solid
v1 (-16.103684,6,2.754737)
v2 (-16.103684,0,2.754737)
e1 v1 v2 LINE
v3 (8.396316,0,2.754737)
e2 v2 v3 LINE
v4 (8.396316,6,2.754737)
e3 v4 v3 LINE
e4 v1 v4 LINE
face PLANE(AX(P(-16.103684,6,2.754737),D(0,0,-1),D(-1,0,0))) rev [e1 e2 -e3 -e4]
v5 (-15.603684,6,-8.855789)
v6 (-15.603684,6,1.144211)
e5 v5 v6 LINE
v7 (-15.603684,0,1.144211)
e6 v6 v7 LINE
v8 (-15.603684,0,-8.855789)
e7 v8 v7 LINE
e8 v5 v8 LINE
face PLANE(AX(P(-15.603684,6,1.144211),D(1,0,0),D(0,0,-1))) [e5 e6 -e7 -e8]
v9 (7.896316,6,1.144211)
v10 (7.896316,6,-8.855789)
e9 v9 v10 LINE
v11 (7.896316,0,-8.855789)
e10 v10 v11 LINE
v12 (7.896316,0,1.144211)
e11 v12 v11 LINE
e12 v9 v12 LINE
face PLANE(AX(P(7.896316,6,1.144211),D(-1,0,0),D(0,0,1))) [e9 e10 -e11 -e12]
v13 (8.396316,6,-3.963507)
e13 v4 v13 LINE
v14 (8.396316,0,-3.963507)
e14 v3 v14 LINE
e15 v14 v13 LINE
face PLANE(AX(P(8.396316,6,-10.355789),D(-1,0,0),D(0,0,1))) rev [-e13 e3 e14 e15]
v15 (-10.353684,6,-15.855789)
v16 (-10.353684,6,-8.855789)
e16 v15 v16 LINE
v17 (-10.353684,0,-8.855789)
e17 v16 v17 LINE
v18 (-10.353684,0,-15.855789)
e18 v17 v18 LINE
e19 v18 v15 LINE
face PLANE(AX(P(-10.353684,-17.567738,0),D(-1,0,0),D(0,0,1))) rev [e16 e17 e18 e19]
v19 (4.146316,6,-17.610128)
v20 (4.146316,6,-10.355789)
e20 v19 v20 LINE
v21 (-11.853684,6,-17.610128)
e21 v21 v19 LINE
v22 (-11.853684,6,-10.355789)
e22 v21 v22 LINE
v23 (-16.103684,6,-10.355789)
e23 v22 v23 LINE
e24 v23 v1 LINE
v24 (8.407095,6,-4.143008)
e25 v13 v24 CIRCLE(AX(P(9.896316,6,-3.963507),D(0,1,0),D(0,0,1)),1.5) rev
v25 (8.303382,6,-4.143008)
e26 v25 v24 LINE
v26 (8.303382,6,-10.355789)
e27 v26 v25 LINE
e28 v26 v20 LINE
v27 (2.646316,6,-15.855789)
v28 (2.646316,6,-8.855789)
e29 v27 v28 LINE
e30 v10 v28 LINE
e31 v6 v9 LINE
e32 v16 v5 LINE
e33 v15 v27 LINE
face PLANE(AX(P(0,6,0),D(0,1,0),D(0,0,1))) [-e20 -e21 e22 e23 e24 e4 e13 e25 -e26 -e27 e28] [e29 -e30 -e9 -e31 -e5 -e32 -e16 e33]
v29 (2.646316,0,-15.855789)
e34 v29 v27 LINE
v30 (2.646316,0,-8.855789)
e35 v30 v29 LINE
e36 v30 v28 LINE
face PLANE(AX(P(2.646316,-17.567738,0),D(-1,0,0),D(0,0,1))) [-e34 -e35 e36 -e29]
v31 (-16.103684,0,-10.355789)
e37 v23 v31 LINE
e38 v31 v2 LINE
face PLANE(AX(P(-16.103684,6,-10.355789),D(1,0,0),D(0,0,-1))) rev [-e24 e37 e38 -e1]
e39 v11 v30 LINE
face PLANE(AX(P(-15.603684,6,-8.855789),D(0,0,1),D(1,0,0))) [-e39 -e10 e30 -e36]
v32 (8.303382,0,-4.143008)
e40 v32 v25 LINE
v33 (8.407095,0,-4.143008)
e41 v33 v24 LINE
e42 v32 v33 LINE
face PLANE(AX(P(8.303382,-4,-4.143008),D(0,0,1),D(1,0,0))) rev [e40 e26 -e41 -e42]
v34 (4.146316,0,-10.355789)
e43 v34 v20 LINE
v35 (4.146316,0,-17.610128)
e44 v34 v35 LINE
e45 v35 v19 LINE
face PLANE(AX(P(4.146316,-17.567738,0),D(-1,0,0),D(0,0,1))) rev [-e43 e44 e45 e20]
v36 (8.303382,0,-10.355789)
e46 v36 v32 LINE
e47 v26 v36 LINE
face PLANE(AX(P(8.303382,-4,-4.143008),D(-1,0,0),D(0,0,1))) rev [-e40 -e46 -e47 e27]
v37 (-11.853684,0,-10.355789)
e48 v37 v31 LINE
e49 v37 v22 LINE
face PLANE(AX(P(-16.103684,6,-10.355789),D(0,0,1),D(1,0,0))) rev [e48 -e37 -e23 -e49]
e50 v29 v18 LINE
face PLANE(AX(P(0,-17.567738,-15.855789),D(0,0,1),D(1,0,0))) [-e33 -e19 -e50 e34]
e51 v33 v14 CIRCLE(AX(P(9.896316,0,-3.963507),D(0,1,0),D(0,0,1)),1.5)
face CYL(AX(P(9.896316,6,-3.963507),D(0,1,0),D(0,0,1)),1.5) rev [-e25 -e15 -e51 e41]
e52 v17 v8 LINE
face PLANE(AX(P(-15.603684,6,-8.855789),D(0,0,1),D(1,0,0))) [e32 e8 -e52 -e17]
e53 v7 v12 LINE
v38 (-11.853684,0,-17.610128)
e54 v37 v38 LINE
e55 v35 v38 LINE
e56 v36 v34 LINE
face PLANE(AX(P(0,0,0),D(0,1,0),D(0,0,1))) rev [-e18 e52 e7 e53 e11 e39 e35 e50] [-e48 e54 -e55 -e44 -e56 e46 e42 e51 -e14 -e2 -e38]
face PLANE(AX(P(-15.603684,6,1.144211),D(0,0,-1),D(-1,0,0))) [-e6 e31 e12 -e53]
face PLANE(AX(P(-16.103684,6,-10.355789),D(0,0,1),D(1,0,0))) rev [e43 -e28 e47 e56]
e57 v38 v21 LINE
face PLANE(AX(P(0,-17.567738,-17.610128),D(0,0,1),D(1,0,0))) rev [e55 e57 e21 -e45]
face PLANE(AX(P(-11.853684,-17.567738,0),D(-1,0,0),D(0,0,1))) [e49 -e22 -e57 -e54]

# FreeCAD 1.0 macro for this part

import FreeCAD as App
import Part
import Sketcher


def edges_at(feature, points):
    """Names of the edges that pass closest to the given points."""
    edges = feature.Shape.Edges
    near = lambda p: min(range(len(edges)), key=lambda i: edges[i].distToShape(Part.Vertex(*p))[0])
    return sorted({f"Edge{near(p) + 1}" for p in points})

doc = App.newDocument("Part")
body = doc.addObject("PartDesign::Body", "Body")

sketch1 = doc.addObject("Sketcher::SketchObject", "Sketch")
body.addObject(sketch1)
sketch1.AttachmentSupport = (doc.XZ_Plane, [""])
sketch1.MapMode = "FlatFace"
sketch1.addGeometry(Part.LineSegment(App.Vector(-16, -10, 0), App.Vector(-16, 3, 0)), False)
sketch1.addGeometry(Part.LineSegment(App.Vector(-16, 3, 0), App.Vector(8, 3, 0)), False)
sketch1.addGeometry(Part.LineSegment(App.Vector(8, 3, 0), App.Vector(8, -10, 0)), False)
sketch1.addGeometry(Part.LineSegment(App.Vector(8, -10, 0), App.Vector(-16, -10, 0)), False)
sketch1.addGeometry(Part.LineSegment(App.Vector(8, 1, 0), App.Vector(-16, 1, 0)), False)
sketch1.addGeometry(Part.LineSegment(App.Vector(-16, 1, 0), App.Vector(-16, -9, 0)), False)
sketch1.addGeometry(Part.LineSegment(App.Vector(-16, -9, 0), App.Vector(8, -9, 0)), False)
sketch1.addGeometry(Part.LineSegment(App.Vector(8, -9, 0), App.Vector(8, 1, 0)), False)
sketch1.addConstraint(Sketcher.Constraint("Coincident", 0, 2, 1, 1))
sketch1.addConstraint(Sketcher.Constraint("Coincident", 1, 2, 2, 1))
sketch1.addConstraint(Sketcher.Constraint("Coincident", 2, 2, 3, 1))
sketch1.addConstraint(Sketcher.Constraint("Coincident", 3, 2, 0, 1))
sketch1.addConstraint(Sketcher.Constraint("Coincident", 4, 2, 5, 1))
sketch1.addConstraint(Sketcher.Constraint("Coincident", 5, 2, 6, 1))
sketch1.addConstraint(Sketcher.Constraint("Coincident", 6, 2, 7, 1))
sketch1.addConstraint(Sketcher.Constraint("Coincident", 7, 2, 4, 1))
sketch1.addConstraint(Sketcher.Constraint("Vertical", 0))
sketch1.addConstraint(Sketcher.Constraint("Horizontal", 1))
sketch1.addConstraint(Sketcher.Constraint("Vertical", 2))
sketch1.addConstraint(Sketcher.Constraint("Horizontal", 3))
sketch1.addConstraint(Sketcher.Constraint("Horizontal", 4))
sketch1.addConstraint(Sketcher.Constraint("Vertical", 5))
sketch1.addConstraint(Sketcher.Constraint("Horizontal", 6))
sketch1.addConstraint(Sketcher.Constraint("Vertical", 7))
sketch1.addConstraint(Sketcher.Constraint("DistanceY", 5, 2, 5, 1, 10.0))
sketch1.addConstraint(Sketcher.Constraint("DistanceX", 1, 1, 1, 2, 24.5))
sketch1.addConstraint(Sketcher.Constraint("DistanceX", 4, 2, 4, 1, 23.5))
sketch1.addConstraint(Sketcher.Constraint("DistanceX", 4, 2, 1, 2, 24.0))
sketch1.addConstraint(Sketcher.Constraint("DistanceY", 3, 2, 4, 2, 11.5))
sketch1.addConstraint(Sketcher.Constraint("DistanceY", 0, 1, 0, 2, 13.110526))
sketch1.addConstraint(Sketcher.Constraint("DistanceY", 2, 2, -1, 1, 10.355789))
sketch1.addConstraint(Sketcher.Constraint("DistanceX", 0, 2, -1, 1, 16.103684))
pad1 = doc.addObject("PartDesign::Pad", "Pad")
body.addObject(pad1)
pad1.Profile = sketch1
pad1.Length = 6
pad1.Reversed = True

sketch2 = doc.addObject("Sketcher::SketchObject", "Sketch001")
body.addObject(sketch2)
sketch2.AttachmentSupport = (doc.XZ_Plane, [""])
sketch2.MapMode = "FlatFace"
sketch2.AttachmentOffset = App.Placement(App.Vector(0, 0, -6), App.Rotation())
sketch2.addGeometry(Part.LineSegment(App.Vector(-10.4, -10.4, 0), App.Vector(-10.4, -15.9, 0)), False)
sketch2.addGeometry(Part.LineSegment(App.Vector(-10.4, -15.9, 0), App.Vector(2.6, -15.9, 0)), False)
sketch2.addGeometry(Part.LineSegment(App.Vector(2.6, -15.9, 0), App.Vector(2.6, -10.4, 0)), False)
sketch2.addGeometry(Part.LineSegment(App.Vector(2.6, -10.4, 0), App.Vector(4.1, -10.4, 0)), False)
sketch2.addGeometry(Part.LineSegment(App.Vector(4.1, -10.4, 0), App.Vector(4.1, -17.6, 0)), False)
sketch2.addGeometry(Part.LineSegment(App.Vector(4.1, -17.6, 0), App.Vector(-11.9, -17.6, 0)), False)
sketch2.addGeometry(Part.LineSegment(App.Vector(-11.9, -17.6, 0), App.Vector(-11.9, -10.4, 0)), False)
sketch2.addGeometry(Part.LineSegment(App.Vector(-11.9, -10.4, 0), App.Vector(-10.4, -10.4, 0)), False)
sketch2.addConstraint(Sketcher.Constraint("Coincident", 0, 2, 1, 1))
sketch2.addConstraint(Sketcher.Constraint("Coincident", 1, 2, 2, 1))
sketch2.addConstraint(Sketcher.Constraint("Coincident", 2, 2, 3, 1))
sketch2.addConstraint(Sketcher.Constraint("Coincident", 3, 2, 4, 1))
sketch2.addConstraint(Sketcher.Constraint("Coincident", 4, 2, 5, 1))
sketch2.addConstraint(Sketcher.Constraint("Coincident", 5, 2, 6, 1))
sketch2.addConstraint(Sketcher.Constraint("Coincident", 6, 2, 7, 1))
sketch2.addConstraint(Sketcher.Constraint("Coincident", 7, 2, 0, 1))
sketch2.addConstraint(Sketcher.Constraint("Vertical", 0))
sketch2.addConstraint(Sketcher.Constraint("Horizontal", 1))
sketch2.addConstraint(Sketcher.Constraint("Vertical", 2))
sketch2.addConstraint(Sketcher.Constraint("Horizontal", 3))
sketch2.addConstraint(Sketcher.Constraint("Vertical", 4))
sketch2.addConstraint(Sketcher.Constraint("Horizontal", 5))
sketch2.addConstraint(Sketcher.Constraint("Vertical", 6))
sketch2.addConstraint(Sketcher.Constraint("Horizontal", 7))
sketch2.addConstraint(Sketcher.Constraint("Horizontal", 3, 2, 6, 2))
sketch2.addConstraint(Sketcher.Constraint("Equal", 3, 7))
sketch2.addConstraint(Sketcher.Constraint("DistanceX", 1, 1, 1, 2, 13.0))
sketch2.addConstraint(Sketcher.Constraint("DistanceX", 5, 2, 5, 1, 16.0))
sketch2.addConstraint(Sketcher.Constraint("DistanceY", 0, 2, 0, 1, 5.5))
sketch2.addConstraint(Sketcher.Constraint("DistanceY", 4, 2, 4, 1, 7.254338))
sketch2.addConstraint(Sketcher.Constraint("DistanceY", 0, 2, -1, 1, 15.855789))
sketch2.addConstraint(Sketcher.Constraint("DistanceX", 0, 2, -1, 1, 10.353684))
pad2 = doc.addObject("PartDesign::Pad", "Pad001")
body.addObject(pad2)
pad2.Profile = sketch2
pad2.Length = 6

sketch3 = doc.addObject("Sketcher::SketchObject", "Sketch002")
body.addObject(sketch3)
sketch3.AttachmentSupport = (doc.XZ_Plane, [""])
sketch3.MapMode = "FlatFace"
sketch3.AttachmentOffset = App.Placement(App.Vector(0, 0, -6), App.Rotation())
sketch3.addGeometry(Part.LineSegment(App.Vector(-10.4, -11.4, 0), App.Vector(-10.4, -6.9, 0)), False)
sketch3.addGeometry(Part.LineSegment(App.Vector(-10.4, -6.9, 0), App.Vector(3.6, -6.9, 0)), False)
sketch3.addGeometry(Part.LineSegment(App.Vector(3.6, -6.9, 0), App.Vector(3.6, -11.4, 0)), False)
sketch3.addGeometry(Part.LineSegment(App.Vector(3.6, -11.4, 0), App.Vector(-10.4, -11.4, 0)), False)
sketch3.addConstraint(Sketcher.Constraint("Coincident", 0, 2, 1, 1))
sketch3.addConstraint(Sketcher.Constraint("Coincident", 1, 2, 2, 1))
sketch3.addConstraint(Sketcher.Constraint("Coincident", 2, 2, 3, 1))
sketch3.addConstraint(Sketcher.Constraint("Coincident", 3, 2, 0, 1))
sketch3.addConstraint(Sketcher.Constraint("Vertical", 0))
sketch3.addConstraint(Sketcher.Constraint("Horizontal", 1))
sketch3.addConstraint(Sketcher.Constraint("Vertical", 2))
sketch3.addConstraint(Sketcher.Constraint("Horizontal", 3))
sketch3.addConstraint(Sketcher.Constraint("DistanceX", 1, 1, 1, 2, 13.982681))
sketch3.addConstraint(Sketcher.Constraint("DistanceY", 0, 1, 0, 2, 4.437804))
sketch3.addConstraint(Sketcher.Constraint("DistanceY", 2, 2, -1, 1, 11.365159))
sketch3.addConstraint(Sketcher.Constraint("DistanceX", 0, 2, -1, 1, 10.353684))
pocket1 = doc.addObject("PartDesign::Pocket", "Pocket")
body.addObject(pocket1)
pocket1.Profile = sketch3
pocket1.Length = 11
pocket1.Reversed = True

sketch4 = doc.addObject("Sketcher::SketchObject", "Sketch003")
body.addObject(sketch4)
sketch4.AttachmentSupport = (doc.XZ_Plane, [""])
sketch4.MapMode = "FlatFace"
sketch4.AttachmentOffset = App.Placement(App.Vector(0, 0, -6), App.Rotation())
sketch4.addGeometry(Part.LineSegment(App.Vector(2.6, -11.4, 0), App.Vector(2.6, -8.9, 0)), False)
sketch4.addGeometry(Part.LineSegment(App.Vector(2.6, -8.9, 0), App.Vector(3.6, -8.9, 0)), False)
sketch4.addGeometry(Part.LineSegment(App.Vector(3.6, -8.9, 0), App.Vector(3.6, -11.4, 0)), False)
sketch4.addGeometry(Part.LineSegment(App.Vector(3.6, -11.4, 0), App.Vector(2.6, -11.4, 0)), False)
sketch4.addConstraint(Sketcher.Constraint("Coincident", 0, 2, 1, 1))
sketch4.addConstraint(Sketcher.Constraint("Coincident", 1, 2, 2, 1))
sketch4.addConstraint(Sketcher.Constraint("Coincident", 2, 2, 3, 1))
sketch4.addConstraint(Sketcher.Constraint("Coincident", 3, 2, 0, 1))
sketch4.addConstraint(Sketcher.Constraint("Vertical", 0))
sketch4.addConstraint(Sketcher.Constraint("Horizontal", 1))
sketch4.addConstraint(Sketcher.Constraint("Vertical", 2))
sketch4.addConstraint(Sketcher.Constraint("Horizontal", 3))
sketch4.addConstraint(Sketcher.Constraint("DistanceX", 1, 1, 1, 2, 0.982681))
sketch4.addConstraint(Sketcher.Constraint("DistanceY", 0, 1, 0, 2, 2.509369))
sketch4.addConstraint(Sketcher.Constraint("DistanceY", 0, 2, -1, 1, 8.855789))
sketch4.addConstraint(Sketcher.Constraint("DistanceX", -1, 1, 0, 2, 2.646316))
pad3 = doc.addObject("PartDesign::Pad", "Pad002")
body.addObject(pad3)
pad3.Profile = sketch4
pad3.Length = 6

sketch5 = doc.addObject("Sketcher::SketchObject", "Sketch004")
body.addObject(sketch5)
sketch5.AttachmentSupport = (doc.YZ_Plane, [""])
sketch5.MapMode = "FlatFace"
sketch5.AttachmentOffset = App.Placement(App.Vector(0, 0, 8.396316), App.Rotation())
sketch5.addGeometry(Part.LineSegment(App.Vector(6, -5.5, 0), App.Vector(0, -5.5, 0)), False)
sketch5.addGeometry(Part.LineSegment(App.Vector(0, -5.5, 0), App.Vector(0, -10.4, 0)), False)
sketch5.addGeometry(Part.LineSegment(App.Vector(0, -10.4, 0), App.Vector(6, -10.4, 0)), False)
sketch5.addGeometry(Part.LineSegment(App.Vector(6, -10.4, 0), App.Vector(6, -5.5, 0)), False)
sketch5.addConstraint(Sketcher.Constraint("Coincident", 0, 2, 1, 1))
sketch5.addConstraint(Sketcher.Constraint("Coincident", 1, 2, 2, 1))
sketch5.addConstraint(Sketcher.Constraint("Coincident", 2, 2, 3, 1))
sketch5.addConstraint(Sketcher.Constraint("Coincident", 3, 2, 0, 1))
sketch5.addConstraint(Sketcher.Constraint("Horizontal", 0))
sketch5.addConstraint(Sketcher.Constraint("Vertical", 1))
sketch5.addConstraint(Sketcher.Constraint("Horizontal", 2))
sketch5.addConstraint(Sketcher.Constraint("Vertical", 3))
sketch5.addConstraint(Sketcher.Constraint("PointOnObject", 0, 2, -2))
sketch5.addConstraint(Sketcher.Constraint("DistanceX", 0, 2, 0, 1, 6.0))
sketch5.addConstraint(Sketcher.Constraint("DistanceY", 1, 2, 1, 1, 4.892282))
sketch5.addConstraint(Sketcher.Constraint("DistanceY", 1, 2, -1, 1, 10.355789))
pad4 = doc.addObject("PartDesign::Pad", "Pad003")
body.addObject(pad4)
pad4.Profile = sketch5
pad4.Length = 3.3
doc.recompute()

fillet = doc.addObject("PartDesign::Fillet", "Fillet")
body.addObject(fillet)
fillet.Base = (pad4, edges_at(pad4, [(8.396, 3, -5.464)]))
fillet.Radius = 1.5

sketch6 = doc.addObject("Sketcher::SketchObject", "Sketch005")
body.addObject(sketch6)
sketch6.AttachmentSupport = (doc.XZ_Plane, [""])
sketch6.MapMode = "FlatFace"
sketch6.AttachmentOffset = App.Placement(App.Vector(0, 0, -6), App.Rotation())
sketch6.addGeometry(Part.LineSegment(App.Vector(8.3, -10.9, 0), App.Vector(8.3, -4.1, 0)), False)
sketch6.addGeometry(Part.LineSegment(App.Vector(8.3, -4.1, 0), App.Vector(12.3, -4.1, 0)), False)
sketch6.addGeometry(Part.LineSegment(App.Vector(12.3, -4.1, 0), App.Vector(12.3, -10.9, 0)), False)
sketch6.addGeometry(Part.LineSegment(App.Vector(12.3, -10.9, 0), App.Vector(8.3, -10.9, 0)), False)
sketch6.addConstraint(Sketcher.Constraint("Coincident", 0, 2, 1, 1))
sketch6.addConstraint(Sketcher.Constraint("Coincident", 1, 2, 2, 1))
sketch6.addConstraint(Sketcher.Constraint("Coincident", 2, 2, 3, 1))
sketch6.addConstraint(Sketcher.Constraint("Coincident", 3, 2, 0, 1))
sketch6.addConstraint(Sketcher.Constraint("Vertical", 0))
sketch6.addConstraint(Sketcher.Constraint("Horizontal", 1))
sketch6.addConstraint(Sketcher.Constraint("Vertical", 2))
sketch6.addConstraint(Sketcher.Constraint("Horizontal", 3))
sketch6.addConstraint(Sketcher.Constraint("DistanceX", 1, 1, 1, 2, 3.982651))
sketch6.addConstraint(Sketcher.Constraint("DistanceY", 0, 1, 0, 2, 6.804777))
sketch6.addConstraint(Sketcher.Constraint("DistanceX", -1, 1, 0, 2, 8.303382))
sketch6.addConstraint(Sketcher.Constraint("DistanceY", 0, 2, -1, 1, 4.143008))
pocket2 = doc.addObject("PartDesign::Pocket", "Pocket001")
body.addObject(pocket2)
pocket2.Profile = sketch6
pocket2.Length = 10
pocket2.Reversed = True

doc.recompute()
